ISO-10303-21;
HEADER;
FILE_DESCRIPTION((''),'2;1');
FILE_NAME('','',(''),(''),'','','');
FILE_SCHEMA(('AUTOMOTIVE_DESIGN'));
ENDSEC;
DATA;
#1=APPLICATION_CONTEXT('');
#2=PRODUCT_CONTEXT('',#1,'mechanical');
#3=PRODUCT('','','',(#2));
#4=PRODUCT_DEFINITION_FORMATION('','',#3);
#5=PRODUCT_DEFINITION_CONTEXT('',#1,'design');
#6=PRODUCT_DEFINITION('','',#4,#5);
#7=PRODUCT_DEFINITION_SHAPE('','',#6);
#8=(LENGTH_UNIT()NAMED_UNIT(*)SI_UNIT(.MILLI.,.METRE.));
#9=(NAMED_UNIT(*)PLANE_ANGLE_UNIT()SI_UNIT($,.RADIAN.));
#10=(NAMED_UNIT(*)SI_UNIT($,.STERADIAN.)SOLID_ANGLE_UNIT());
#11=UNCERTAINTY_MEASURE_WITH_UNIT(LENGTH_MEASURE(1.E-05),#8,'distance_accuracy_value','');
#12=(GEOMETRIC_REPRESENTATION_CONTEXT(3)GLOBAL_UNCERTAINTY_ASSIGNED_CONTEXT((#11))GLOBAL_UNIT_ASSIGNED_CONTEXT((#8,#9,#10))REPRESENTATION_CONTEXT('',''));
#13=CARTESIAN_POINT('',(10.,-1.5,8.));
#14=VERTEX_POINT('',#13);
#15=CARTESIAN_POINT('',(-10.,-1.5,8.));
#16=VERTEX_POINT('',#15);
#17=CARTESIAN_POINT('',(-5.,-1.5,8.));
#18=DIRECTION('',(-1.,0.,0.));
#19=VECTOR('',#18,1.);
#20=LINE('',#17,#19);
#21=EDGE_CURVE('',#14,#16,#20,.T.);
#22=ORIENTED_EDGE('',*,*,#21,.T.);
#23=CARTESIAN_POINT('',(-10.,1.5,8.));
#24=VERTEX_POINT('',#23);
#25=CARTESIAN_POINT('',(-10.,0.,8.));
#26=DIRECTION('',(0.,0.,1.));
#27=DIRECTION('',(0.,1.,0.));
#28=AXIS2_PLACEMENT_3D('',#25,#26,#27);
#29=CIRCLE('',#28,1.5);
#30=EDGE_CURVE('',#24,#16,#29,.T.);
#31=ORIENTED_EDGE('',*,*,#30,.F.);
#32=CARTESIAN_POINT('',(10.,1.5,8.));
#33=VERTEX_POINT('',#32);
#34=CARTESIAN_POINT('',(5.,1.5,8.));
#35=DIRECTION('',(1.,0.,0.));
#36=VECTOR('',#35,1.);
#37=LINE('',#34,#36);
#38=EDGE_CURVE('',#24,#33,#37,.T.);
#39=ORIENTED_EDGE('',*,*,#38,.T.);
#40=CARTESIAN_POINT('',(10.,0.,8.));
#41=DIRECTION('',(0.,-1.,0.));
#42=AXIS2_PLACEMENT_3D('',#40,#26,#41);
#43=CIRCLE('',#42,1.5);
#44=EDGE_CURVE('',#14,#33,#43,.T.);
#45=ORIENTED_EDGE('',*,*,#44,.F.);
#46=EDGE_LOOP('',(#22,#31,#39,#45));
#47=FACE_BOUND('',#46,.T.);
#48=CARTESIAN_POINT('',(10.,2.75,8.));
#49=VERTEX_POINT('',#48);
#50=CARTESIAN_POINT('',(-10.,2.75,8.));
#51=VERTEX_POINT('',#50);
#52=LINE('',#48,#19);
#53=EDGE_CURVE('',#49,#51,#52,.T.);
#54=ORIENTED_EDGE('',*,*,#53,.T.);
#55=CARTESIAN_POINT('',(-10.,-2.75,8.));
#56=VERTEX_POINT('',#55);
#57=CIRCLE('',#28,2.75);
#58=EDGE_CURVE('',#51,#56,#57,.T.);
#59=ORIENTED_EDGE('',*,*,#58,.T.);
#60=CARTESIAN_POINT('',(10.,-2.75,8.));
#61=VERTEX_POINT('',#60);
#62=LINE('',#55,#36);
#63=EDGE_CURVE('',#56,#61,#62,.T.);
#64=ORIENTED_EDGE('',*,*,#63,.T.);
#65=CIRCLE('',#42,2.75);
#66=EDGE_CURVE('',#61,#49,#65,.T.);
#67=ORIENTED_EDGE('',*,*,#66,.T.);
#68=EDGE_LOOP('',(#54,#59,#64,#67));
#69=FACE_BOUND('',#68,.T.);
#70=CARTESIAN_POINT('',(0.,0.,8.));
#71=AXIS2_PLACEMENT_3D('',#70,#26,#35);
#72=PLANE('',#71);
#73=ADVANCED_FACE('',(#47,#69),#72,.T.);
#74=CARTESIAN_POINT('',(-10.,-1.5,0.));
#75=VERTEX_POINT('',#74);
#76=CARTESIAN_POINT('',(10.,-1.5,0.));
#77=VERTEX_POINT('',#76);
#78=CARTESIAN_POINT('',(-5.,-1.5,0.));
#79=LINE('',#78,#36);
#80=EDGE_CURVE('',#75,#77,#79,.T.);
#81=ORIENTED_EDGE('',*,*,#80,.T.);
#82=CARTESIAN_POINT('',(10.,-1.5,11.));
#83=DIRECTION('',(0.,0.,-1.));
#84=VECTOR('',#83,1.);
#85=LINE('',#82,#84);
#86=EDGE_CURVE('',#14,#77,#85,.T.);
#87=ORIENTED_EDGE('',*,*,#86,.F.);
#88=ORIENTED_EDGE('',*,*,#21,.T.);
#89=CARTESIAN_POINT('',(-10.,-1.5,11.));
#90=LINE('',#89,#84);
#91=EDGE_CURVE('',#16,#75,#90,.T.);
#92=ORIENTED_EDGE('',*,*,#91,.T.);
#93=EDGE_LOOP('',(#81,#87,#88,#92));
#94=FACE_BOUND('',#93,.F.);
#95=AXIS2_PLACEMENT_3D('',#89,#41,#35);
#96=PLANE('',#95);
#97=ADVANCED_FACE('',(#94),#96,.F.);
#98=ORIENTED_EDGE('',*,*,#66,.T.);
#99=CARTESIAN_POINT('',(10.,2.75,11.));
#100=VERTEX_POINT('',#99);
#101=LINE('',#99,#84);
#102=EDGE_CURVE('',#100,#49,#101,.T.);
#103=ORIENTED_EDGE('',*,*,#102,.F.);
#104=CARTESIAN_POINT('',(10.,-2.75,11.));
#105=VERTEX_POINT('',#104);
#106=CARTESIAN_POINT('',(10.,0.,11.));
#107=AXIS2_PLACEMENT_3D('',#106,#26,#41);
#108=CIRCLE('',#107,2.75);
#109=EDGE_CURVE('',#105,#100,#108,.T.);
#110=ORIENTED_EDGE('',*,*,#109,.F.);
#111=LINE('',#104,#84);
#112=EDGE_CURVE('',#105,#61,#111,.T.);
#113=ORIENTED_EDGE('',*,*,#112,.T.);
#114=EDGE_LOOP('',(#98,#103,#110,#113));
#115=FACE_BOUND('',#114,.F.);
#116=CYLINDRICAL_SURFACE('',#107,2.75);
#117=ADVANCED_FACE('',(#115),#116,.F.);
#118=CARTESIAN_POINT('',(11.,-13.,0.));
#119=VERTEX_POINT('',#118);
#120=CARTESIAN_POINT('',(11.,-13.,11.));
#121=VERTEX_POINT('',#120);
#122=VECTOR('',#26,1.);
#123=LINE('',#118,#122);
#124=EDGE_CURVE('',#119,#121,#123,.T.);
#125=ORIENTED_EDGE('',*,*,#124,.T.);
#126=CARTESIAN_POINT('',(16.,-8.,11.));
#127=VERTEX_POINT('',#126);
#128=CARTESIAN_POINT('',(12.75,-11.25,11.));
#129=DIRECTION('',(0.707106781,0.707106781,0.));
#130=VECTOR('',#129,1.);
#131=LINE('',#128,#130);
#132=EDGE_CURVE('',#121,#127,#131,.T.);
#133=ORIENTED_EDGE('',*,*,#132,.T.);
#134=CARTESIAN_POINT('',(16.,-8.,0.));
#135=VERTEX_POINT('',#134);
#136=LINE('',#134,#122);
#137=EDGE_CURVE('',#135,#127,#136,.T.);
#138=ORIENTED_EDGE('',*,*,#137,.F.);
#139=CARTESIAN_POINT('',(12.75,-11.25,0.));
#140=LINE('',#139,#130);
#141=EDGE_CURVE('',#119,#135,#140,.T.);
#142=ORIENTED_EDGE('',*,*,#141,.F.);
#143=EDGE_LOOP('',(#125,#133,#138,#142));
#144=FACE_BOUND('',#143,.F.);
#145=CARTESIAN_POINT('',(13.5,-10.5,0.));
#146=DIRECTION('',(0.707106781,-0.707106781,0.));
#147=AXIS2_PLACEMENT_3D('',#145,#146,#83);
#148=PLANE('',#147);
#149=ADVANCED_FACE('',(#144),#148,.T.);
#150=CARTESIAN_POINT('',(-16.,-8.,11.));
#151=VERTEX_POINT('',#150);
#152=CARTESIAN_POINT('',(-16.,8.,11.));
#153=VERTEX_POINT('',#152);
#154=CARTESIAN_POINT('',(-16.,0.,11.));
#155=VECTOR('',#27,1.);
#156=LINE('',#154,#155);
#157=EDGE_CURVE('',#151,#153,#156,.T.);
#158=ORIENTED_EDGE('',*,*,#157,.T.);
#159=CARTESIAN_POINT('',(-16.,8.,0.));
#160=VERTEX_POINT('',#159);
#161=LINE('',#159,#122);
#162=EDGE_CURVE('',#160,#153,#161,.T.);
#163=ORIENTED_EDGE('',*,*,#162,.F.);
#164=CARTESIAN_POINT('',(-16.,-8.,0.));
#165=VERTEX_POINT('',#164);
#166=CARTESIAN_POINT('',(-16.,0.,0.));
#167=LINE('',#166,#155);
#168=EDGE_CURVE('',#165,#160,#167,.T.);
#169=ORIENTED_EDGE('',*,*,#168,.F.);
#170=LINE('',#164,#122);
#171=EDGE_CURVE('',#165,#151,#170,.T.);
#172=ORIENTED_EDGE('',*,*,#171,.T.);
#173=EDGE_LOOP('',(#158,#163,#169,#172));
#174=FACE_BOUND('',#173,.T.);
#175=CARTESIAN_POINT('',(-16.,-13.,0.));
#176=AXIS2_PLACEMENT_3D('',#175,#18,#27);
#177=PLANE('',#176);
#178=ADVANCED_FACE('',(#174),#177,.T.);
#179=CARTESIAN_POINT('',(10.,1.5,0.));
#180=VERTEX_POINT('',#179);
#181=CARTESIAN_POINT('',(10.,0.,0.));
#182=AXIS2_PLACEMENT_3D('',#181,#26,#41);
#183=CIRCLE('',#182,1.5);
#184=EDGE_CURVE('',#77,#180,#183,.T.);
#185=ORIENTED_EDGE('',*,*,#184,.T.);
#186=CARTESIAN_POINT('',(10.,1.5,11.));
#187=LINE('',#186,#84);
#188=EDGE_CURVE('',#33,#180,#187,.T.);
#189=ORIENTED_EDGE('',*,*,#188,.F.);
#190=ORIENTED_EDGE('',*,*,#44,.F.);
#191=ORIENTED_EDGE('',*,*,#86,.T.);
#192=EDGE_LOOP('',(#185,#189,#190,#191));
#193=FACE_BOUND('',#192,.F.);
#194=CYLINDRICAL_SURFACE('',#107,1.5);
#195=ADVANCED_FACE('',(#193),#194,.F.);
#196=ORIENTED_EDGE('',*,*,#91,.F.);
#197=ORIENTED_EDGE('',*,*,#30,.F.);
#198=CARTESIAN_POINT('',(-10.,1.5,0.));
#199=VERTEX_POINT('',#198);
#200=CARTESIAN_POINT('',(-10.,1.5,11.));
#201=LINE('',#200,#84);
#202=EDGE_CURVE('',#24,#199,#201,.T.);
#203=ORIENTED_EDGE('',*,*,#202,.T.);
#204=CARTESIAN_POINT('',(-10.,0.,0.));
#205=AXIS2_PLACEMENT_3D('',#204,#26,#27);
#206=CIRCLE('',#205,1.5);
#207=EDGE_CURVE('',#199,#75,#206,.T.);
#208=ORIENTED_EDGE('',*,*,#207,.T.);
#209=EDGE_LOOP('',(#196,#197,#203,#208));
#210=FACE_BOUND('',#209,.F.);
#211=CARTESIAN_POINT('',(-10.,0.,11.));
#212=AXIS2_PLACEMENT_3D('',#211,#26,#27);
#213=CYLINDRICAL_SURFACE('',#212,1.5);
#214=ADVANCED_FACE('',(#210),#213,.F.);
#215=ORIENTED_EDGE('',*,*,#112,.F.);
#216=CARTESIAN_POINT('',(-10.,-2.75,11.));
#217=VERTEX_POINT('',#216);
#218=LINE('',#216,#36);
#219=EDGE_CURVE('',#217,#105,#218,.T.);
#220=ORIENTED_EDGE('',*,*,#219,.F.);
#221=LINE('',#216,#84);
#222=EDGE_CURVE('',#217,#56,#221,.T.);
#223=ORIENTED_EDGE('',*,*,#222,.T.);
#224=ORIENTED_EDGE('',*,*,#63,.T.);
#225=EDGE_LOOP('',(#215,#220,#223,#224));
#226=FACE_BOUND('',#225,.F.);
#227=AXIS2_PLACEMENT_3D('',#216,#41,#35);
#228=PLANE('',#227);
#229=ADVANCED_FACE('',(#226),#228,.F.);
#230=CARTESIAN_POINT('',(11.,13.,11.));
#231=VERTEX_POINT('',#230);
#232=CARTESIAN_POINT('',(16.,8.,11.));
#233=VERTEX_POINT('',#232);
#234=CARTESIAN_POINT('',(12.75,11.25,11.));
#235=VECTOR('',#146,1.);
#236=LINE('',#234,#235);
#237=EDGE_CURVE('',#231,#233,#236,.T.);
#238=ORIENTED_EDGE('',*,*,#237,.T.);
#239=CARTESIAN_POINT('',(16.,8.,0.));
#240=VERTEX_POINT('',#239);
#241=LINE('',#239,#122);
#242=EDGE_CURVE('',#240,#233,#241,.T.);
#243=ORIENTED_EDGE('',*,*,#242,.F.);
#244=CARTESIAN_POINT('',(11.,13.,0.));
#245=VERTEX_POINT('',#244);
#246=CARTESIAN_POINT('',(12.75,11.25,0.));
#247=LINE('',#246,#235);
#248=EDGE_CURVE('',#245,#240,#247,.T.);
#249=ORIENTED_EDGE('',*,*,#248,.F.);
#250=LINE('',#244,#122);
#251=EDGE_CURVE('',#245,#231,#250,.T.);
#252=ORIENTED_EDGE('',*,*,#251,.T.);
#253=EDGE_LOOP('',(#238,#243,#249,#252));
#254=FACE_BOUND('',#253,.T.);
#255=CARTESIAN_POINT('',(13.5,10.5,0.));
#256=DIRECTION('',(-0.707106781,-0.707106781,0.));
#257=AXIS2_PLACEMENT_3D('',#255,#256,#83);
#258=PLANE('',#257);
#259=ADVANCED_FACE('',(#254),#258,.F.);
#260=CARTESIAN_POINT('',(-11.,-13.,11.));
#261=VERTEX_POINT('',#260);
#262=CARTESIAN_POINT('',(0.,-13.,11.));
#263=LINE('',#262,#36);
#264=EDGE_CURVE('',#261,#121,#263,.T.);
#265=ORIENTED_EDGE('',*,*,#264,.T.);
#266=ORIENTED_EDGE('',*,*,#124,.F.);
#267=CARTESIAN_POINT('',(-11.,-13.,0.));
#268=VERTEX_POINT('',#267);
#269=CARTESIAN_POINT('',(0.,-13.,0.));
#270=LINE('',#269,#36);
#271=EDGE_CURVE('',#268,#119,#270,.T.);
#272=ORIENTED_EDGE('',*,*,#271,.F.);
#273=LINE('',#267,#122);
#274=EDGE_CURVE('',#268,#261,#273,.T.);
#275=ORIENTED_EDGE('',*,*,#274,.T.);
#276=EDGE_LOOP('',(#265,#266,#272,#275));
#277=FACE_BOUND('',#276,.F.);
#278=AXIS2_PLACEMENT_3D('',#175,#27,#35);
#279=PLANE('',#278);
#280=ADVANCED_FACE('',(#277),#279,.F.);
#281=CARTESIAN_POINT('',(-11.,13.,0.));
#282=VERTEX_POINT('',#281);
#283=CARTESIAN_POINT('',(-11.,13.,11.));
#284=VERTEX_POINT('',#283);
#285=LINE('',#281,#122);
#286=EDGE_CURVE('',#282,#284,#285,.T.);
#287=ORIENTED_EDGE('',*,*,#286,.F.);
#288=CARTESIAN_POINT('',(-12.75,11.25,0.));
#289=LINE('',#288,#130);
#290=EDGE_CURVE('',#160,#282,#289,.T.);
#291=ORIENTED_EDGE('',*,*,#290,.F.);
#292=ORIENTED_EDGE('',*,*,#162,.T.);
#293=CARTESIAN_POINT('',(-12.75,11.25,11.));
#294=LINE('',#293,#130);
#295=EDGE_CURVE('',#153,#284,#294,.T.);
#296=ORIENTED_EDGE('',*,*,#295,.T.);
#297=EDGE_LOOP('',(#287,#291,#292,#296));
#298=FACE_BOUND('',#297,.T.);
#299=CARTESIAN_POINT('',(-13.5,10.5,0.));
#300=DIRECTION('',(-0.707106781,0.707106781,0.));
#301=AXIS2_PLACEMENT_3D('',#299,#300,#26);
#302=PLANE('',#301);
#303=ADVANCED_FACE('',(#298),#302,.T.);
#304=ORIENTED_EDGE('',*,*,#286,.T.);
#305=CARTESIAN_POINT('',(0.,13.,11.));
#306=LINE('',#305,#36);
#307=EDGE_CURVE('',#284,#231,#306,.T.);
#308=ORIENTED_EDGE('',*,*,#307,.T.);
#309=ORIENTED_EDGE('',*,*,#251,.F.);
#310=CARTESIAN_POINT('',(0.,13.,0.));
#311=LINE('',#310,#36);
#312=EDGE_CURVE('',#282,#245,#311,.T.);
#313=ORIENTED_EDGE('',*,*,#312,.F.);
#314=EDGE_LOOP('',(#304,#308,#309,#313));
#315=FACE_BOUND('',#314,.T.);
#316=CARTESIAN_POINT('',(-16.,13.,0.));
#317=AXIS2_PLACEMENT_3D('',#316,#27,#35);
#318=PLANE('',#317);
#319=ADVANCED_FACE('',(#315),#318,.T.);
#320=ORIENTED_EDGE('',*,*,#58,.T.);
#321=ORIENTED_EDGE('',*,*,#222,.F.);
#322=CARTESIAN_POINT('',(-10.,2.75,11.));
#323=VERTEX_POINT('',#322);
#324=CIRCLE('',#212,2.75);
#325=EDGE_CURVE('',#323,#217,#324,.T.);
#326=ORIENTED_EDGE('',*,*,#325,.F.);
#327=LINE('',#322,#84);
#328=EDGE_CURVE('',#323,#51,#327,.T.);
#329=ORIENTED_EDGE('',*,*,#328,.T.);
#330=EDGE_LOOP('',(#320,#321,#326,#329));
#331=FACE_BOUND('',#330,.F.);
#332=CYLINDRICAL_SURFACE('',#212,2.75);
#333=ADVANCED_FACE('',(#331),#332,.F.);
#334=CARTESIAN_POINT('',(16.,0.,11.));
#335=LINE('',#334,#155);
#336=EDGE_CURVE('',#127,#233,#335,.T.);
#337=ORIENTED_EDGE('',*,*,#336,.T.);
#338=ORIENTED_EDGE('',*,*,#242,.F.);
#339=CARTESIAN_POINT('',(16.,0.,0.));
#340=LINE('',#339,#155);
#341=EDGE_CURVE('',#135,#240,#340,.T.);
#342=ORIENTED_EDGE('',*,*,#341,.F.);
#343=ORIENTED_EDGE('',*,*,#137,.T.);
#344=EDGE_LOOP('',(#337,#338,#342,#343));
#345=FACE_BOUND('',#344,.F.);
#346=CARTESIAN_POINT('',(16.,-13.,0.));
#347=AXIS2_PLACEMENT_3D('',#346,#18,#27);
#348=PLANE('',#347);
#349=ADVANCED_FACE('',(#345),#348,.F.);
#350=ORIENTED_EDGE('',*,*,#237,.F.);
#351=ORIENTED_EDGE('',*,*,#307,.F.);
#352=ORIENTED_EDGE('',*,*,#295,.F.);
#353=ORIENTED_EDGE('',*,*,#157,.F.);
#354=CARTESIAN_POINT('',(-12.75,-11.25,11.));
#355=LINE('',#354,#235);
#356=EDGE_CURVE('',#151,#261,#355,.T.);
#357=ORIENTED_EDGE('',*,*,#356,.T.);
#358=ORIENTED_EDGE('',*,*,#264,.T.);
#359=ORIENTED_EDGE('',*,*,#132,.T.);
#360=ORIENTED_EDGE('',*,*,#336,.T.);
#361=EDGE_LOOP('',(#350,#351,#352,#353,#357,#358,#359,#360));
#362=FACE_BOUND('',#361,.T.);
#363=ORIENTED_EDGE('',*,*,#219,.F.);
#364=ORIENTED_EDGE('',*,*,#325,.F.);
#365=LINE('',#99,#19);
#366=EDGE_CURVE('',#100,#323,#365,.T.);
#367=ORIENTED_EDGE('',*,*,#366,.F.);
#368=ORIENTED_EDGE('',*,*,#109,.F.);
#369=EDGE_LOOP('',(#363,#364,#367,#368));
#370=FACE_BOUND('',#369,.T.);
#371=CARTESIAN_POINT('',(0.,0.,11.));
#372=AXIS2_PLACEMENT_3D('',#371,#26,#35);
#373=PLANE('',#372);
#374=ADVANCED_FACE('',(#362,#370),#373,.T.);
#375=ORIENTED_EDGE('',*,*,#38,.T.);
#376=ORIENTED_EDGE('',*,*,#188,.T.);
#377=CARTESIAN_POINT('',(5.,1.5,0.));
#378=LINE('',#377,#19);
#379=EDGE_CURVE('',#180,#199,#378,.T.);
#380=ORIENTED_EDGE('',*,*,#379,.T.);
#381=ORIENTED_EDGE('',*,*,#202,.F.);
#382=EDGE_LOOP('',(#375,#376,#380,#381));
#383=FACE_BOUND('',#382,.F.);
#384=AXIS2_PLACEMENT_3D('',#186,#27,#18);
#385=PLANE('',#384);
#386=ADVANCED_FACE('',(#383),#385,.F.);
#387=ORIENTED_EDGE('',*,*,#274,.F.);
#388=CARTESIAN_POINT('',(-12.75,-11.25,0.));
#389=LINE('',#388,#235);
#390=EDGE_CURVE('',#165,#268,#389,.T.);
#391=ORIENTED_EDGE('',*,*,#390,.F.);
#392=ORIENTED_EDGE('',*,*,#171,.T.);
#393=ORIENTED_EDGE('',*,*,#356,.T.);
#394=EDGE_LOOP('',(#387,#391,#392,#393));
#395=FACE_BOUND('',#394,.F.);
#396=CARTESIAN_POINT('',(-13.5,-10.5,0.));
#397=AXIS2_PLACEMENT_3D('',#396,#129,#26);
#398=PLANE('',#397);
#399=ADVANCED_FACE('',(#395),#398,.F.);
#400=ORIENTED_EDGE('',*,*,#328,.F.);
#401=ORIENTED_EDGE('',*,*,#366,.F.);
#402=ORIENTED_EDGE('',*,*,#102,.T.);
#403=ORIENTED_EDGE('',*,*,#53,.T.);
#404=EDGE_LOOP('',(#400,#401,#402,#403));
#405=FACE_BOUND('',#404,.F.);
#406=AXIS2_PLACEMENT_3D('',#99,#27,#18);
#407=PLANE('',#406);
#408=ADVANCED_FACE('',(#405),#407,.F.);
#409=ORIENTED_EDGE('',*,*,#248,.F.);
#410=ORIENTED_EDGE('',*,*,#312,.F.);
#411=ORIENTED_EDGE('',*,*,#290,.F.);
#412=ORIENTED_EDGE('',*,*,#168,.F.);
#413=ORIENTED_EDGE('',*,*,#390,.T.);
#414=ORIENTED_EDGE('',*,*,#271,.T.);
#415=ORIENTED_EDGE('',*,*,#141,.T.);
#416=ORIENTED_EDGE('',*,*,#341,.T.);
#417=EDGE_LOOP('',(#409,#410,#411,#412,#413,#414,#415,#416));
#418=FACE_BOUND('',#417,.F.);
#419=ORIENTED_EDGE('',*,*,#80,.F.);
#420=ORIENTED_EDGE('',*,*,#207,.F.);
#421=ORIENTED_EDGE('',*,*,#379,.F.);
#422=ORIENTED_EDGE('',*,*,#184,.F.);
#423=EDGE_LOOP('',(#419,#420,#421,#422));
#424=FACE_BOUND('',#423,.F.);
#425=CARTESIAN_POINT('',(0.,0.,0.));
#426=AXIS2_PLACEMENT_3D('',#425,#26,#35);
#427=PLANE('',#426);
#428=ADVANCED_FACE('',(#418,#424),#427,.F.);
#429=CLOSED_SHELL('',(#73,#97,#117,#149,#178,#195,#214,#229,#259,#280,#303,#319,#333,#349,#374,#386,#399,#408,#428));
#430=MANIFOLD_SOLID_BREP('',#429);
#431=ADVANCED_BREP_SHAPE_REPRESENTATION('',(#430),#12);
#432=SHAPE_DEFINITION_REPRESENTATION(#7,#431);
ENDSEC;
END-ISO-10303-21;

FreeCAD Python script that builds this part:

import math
import FreeCAD as App
import Part
import Sketcher
Q = App.Units.Quantity


def edges_at(feature, points):
    """Names of the edges that pass closest to the given points."""
    edges = feature.Shape.Edges
    near = lambda p: min(range(len(edges)), key=lambda i: edges[i].distToShape(Part.Vertex(*p))[0])
    return sorted({f"Edge{near(p) + 1}" for p in points})

doc = App.newDocument("Part")
body = doc.addObject("PartDesign::Body", "Body")

sketch1 = body.newObject("Sketcher::SketchObject", "Sketch")
sketch1.AttachmentSupport = (doc.getObject("XY_Plane"), [""])
sketch1.MapMode = "FlatFace"
sketch1.addGeometry(Part.LineSegment(App.Vector(-16, 13, 0), App.Vector(-16, -13, 0)), False)
sketch1.addGeometry(Part.LineSegment(App.Vector(-16, -13, 0), App.Vector(16, -13, 0)), False)
sketch1.addGeometry(Part.LineSegment(App.Vector(16, -13, 0), App.Vector(16, 13, 0)), False)
sketch1.addGeometry(Part.LineSegment(App.Vector(16, 13, 0), App.Vector(-16, 13, 0)), False)
sketch1.addConstraint(Sketcher.Constraint("Coincident", 0, 2, 1, 1))
sketch1.addConstraint(Sketcher.Constraint("Coincident", 1, 2, 2, 1))
sketch1.addConstraint(Sketcher.Constraint("Coincident", 2, 2, 3, 1))
sketch1.addConstraint(Sketcher.Constraint("Coincident", 3, 2, 0, 1))
sketch1.addConstraint(Sketcher.Constraint("Vertical", 0))
sketch1.addConstraint(Sketcher.Constraint("Horizontal", 1))
sketch1.addConstraint(Sketcher.Constraint("Vertical", 2))
sketch1.addConstraint(Sketcher.Constraint("Horizontal", 3))
sketch1.addConstraint(Sketcher.Constraint("Symmetric", 0, 2, 2, 2, -1, 1))
sketch1.addConstraint(Sketcher.Constraint("DistanceX", 1, 1, 1, 2, Q("32 mm")))
sketch1.addConstraint(Sketcher.Constraint("DistanceY", 0, 2, 0, 1, Q("26 mm")))
pad1 = body.newObject("PartDesign::Pad", "Pad")
pad1.Profile = sketch1
pad1.Length = 11

sketch2 = body.newObject("Sketcher::SketchObject", "Sketch001")
sketch2.AttachmentSupport = (doc.getObject("XY_Plane"), [""])
sketch2.MapMode = "FlatFace"
sketch2.AttachmentOffset = App.Placement(App.Vector(0, 0, 11), App.Rotation())
sketch2.addGeometry(Part.ArcOfCircle(Part.Circle(App.Vector(-10, 0, 0), App.Vector(0, 0, 1), 1.5), math.radians(90), math.radians(270)), False)
sketch2.addGeometry(Part.LineSegment(App.Vector(-10, -1.5, 0), App.Vector(10, -1.5, 0)), False)
sketch2.addGeometry(Part.ArcOfCircle(Part.Circle(App.Vector(10, 0, 0), App.Vector(0, 0, 1), 1.5), math.radians(-90), math.radians(90)), False)
sketch2.addGeometry(Part.LineSegment(App.Vector(10, 1.5, 0), App.Vector(-10, 1.5, 0)), False)
sketch2.addConstraint(Sketcher.Constraint("Tangent", 0, 2, 1, 1))
sketch2.addConstraint(Sketcher.Constraint("Tangent", 1, 2, 2, 1))
sketch2.addConstraint(Sketcher.Constraint("Tangent", 2, 2, 3, 1))
sketch2.addConstraint(Sketcher.Constraint("Tangent", 3, 2, 0, 1))
sketch2.addConstraint(Sketcher.Constraint("Horizontal", 1))
sketch2.addConstraint(Sketcher.Constraint("Horizontal", 3))
sketch2.addConstraint(Sketcher.Constraint("Symmetric", 0, 3, 2, 3, -1, 1))
sketch2.addConstraint(Sketcher.Constraint("Radius", 0, Q("1.5 mm")))
sketch2.addConstraint(Sketcher.Constraint("DistanceX", 1, 1, 1, 2, Q("20 mm")))
pocket1 = body.newObject("PartDesign::Pocket", "Pocket")
pocket1.Profile = sketch2
pocket1.Length = 15

sketch3 = body.newObject("Sketcher::SketchObject", "Sketch002")
sketch3.AttachmentSupport = (doc.getObject("XY_Plane"), [""])
sketch3.MapMode = "FlatFace"
sketch3.AttachmentOffset = App.Placement(App.Vector(0, 0, 11), App.Rotation())
sketch3.addGeometry(Part.ArcOfCircle(Part.Circle(App.Vector(-10, 0, 0), App.Vector(0, 0, 1), 2.8), math.radians(90), math.radians(270)), False)
sketch3.addGeometry(Part.LineSegment(App.Vector(-10, -2.8, 0), App.Vector(10, -2.8, 0)), False)
sketch3.addGeometry(Part.ArcOfCircle(Part.Circle(App.Vector(10, 0, 0), App.Vector(0, 0, 1), 2.8), math.radians(-90), math.radians(90)), False)
sketch3.addGeometry(Part.LineSegment(App.Vector(10, 2.8, 0), App.Vector(-10, 2.8, 0)), False)
sketch3.addConstraint(Sketcher.Constraint("Tangent", 0, 2, 1, 1))
sketch3.addConstraint(Sketcher.Constraint("Tangent", 1, 2, 2, 1))
sketch3.addConstraint(Sketcher.Constraint("Tangent", 2, 2, 3, 1))
sketch3.addConstraint(Sketcher.Constraint("Tangent", 3, 2, 0, 1))
sketch3.addConstraint(Sketcher.Constraint("Horizontal", 1))
sketch3.addConstraint(Sketcher.Constraint("Horizontal", 3))
sketch3.addConstraint(Sketcher.Constraint("Symmetric", 0, 3, 2, 3, -1, 1))
sketch3.addConstraint(Sketcher.Constraint("DistanceX", 1, 1, 1, 2, Q("20 mm")))
sketch3.addConstraint(Sketcher.Constraint("Radius", 0, Q("2.75 mm")))
pocket2 = body.newObject("PartDesign::Pocket", "Pocket001")
pocket2.Profile = sketch3
pocket2.Length = 3
doc.recompute()

chamfer = body.newObject("PartDesign::Chamfer", "Chamfer")
chamfer.Base = (pocket2, edges_at(pocket2, [
    (-16, -13, 5.5),
    (16, -13, 5.5),
    (16, 13, 5.5),
    (-16, 13, 5.5),
]))
chamfer.Size = 5

doc.recompute()
